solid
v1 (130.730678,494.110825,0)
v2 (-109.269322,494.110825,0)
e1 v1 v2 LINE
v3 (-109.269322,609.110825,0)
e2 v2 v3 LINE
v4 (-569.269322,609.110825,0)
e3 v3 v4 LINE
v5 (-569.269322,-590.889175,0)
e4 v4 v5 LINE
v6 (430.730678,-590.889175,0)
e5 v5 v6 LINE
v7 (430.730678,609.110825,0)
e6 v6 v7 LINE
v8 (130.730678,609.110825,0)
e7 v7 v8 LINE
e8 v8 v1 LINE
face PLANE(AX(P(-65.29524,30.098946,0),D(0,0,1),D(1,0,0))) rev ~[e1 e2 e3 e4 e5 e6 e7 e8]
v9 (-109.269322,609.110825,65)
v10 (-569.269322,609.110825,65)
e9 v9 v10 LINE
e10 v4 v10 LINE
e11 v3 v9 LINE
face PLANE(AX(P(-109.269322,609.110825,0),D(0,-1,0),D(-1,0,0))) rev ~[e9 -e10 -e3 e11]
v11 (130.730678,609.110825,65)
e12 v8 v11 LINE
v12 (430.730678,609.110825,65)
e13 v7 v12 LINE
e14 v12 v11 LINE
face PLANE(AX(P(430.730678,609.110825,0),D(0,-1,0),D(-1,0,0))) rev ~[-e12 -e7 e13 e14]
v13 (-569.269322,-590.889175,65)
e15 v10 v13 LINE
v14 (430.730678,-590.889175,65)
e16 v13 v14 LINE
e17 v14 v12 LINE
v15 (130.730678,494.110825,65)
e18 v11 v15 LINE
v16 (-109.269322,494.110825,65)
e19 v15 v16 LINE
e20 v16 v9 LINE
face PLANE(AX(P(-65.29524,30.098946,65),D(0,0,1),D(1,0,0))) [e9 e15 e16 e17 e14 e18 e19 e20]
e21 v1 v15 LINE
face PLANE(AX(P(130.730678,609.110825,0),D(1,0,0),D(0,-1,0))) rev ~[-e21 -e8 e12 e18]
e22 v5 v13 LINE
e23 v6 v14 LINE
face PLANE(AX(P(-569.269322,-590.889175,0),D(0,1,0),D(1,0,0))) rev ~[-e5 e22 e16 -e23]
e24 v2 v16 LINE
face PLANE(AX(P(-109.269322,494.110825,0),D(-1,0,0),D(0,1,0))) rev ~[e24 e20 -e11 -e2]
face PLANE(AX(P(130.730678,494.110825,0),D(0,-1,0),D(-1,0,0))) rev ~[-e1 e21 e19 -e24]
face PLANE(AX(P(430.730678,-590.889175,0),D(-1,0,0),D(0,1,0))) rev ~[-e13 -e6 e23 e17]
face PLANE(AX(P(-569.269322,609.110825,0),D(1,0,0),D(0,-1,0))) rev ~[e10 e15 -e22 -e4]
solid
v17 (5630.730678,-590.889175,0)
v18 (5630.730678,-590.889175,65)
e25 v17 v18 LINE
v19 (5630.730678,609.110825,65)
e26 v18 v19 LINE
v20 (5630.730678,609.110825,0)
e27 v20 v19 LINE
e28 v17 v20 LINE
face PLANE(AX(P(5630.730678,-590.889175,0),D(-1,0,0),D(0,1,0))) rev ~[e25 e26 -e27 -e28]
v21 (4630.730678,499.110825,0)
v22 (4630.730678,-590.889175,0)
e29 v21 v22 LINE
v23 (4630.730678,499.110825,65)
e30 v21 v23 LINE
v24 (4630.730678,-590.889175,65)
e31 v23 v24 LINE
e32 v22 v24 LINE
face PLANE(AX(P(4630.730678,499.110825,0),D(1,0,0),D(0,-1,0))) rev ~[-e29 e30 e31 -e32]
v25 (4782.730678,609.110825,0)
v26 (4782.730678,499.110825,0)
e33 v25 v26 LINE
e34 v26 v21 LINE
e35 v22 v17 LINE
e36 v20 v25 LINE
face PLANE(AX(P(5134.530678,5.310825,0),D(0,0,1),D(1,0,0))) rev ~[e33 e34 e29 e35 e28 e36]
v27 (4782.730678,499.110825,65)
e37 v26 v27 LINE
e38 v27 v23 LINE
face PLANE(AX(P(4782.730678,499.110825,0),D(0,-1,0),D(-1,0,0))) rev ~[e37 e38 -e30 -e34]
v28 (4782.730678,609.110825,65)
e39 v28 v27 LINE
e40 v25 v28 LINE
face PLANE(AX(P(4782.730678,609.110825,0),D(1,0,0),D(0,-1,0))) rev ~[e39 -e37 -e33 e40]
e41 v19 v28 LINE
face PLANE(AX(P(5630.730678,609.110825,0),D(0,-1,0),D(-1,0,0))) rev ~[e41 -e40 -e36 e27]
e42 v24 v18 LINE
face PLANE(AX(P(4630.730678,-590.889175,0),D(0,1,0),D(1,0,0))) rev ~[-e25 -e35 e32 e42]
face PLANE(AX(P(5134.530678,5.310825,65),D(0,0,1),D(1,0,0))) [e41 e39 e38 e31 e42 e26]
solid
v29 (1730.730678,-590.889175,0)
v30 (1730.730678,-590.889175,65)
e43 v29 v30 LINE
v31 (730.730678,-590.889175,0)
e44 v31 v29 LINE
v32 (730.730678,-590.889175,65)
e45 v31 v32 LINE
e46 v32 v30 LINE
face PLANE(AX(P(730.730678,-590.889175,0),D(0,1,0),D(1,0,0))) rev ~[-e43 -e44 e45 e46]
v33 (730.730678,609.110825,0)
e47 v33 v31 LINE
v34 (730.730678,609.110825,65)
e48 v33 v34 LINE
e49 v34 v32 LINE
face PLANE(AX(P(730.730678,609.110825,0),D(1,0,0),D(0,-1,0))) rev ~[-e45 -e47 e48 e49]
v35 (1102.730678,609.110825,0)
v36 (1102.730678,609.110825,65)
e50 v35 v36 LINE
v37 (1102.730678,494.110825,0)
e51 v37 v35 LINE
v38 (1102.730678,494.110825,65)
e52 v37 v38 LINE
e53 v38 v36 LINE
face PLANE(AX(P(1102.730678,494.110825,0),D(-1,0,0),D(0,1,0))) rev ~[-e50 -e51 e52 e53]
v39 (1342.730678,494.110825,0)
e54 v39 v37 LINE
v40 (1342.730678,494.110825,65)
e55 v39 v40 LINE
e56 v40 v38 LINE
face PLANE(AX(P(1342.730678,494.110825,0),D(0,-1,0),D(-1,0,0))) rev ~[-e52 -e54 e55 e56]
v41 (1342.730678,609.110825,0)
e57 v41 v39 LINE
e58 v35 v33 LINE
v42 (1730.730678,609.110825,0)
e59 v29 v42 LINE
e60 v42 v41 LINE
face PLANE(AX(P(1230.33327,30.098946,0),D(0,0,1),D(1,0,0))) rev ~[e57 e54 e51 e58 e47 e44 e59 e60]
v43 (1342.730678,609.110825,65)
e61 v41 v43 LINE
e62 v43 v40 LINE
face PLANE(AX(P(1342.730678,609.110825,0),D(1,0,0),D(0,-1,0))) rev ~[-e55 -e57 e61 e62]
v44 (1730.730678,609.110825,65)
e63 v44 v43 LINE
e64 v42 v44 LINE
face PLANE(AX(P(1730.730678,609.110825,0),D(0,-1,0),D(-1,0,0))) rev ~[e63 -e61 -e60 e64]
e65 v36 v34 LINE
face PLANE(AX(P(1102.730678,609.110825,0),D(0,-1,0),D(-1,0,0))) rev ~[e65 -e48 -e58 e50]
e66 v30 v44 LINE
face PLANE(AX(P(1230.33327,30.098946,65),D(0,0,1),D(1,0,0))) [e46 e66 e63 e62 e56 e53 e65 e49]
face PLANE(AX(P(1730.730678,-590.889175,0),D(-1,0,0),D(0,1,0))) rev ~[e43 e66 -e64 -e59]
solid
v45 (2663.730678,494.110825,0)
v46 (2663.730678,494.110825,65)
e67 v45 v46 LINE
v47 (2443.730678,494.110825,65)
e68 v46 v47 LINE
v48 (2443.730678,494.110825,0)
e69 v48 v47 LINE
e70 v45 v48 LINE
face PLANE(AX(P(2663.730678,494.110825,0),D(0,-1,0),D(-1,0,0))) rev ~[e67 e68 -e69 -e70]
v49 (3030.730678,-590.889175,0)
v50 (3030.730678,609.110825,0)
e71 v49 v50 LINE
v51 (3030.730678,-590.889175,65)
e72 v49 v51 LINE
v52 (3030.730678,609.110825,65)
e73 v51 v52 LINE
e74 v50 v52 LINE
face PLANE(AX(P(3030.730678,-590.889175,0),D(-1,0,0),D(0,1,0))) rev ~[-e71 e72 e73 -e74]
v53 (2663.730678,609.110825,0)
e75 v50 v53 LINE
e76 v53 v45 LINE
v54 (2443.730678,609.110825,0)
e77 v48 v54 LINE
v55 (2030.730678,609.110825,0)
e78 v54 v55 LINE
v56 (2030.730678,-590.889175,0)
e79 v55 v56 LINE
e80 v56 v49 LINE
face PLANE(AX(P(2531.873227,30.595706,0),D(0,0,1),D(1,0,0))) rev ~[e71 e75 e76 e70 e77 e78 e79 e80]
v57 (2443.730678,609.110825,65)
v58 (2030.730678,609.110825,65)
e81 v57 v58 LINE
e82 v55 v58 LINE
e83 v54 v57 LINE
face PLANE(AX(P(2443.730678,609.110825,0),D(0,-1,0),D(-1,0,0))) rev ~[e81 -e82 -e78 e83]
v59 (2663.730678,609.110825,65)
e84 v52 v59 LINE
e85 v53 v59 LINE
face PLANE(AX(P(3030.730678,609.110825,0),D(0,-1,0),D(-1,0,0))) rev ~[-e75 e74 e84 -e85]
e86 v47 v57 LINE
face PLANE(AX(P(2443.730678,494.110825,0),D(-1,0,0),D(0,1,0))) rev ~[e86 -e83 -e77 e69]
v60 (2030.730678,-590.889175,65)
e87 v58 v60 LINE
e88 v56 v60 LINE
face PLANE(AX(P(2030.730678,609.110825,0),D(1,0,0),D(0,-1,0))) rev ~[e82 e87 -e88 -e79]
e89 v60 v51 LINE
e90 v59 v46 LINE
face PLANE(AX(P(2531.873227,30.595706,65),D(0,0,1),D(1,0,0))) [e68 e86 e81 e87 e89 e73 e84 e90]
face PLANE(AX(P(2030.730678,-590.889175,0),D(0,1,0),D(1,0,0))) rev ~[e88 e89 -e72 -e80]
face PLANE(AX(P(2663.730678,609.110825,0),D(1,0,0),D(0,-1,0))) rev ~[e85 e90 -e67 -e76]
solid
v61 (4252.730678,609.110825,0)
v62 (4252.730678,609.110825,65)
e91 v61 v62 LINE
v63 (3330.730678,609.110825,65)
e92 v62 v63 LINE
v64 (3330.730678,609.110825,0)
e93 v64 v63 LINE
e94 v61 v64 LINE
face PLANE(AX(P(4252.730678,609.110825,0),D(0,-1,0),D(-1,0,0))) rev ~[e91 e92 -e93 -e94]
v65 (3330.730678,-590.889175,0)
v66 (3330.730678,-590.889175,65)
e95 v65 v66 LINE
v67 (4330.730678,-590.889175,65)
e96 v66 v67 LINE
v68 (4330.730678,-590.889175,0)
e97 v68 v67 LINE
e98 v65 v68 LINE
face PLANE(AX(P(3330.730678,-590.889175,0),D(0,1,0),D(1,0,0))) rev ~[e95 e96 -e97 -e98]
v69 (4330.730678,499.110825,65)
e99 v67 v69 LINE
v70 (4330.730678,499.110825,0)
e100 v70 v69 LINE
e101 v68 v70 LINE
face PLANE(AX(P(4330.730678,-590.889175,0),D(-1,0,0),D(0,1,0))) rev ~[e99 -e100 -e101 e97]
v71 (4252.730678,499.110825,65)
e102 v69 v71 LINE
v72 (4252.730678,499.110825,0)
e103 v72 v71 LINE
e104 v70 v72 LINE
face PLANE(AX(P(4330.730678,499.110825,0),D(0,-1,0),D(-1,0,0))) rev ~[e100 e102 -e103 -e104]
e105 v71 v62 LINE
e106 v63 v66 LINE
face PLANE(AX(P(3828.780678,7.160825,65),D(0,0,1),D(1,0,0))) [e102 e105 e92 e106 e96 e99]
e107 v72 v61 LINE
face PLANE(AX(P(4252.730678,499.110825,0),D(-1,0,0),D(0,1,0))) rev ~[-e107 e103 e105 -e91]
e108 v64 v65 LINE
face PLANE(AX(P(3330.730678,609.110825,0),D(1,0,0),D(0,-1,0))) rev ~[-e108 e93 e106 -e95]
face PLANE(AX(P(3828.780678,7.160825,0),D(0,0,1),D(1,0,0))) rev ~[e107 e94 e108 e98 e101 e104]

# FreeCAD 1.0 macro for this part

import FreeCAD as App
import Part
import Sketcher

doc = App.newDocument("Part")
body = doc.addObject("PartDesign::Body", "Body")
body.AllowCompound = True

# Sketch on XY plane
sketch1 = body.newObject("Sketcher::SketchObject", "Sketch")
sketch1.AttachmentSupport = (doc.getObject("XY_Plane"), [""])
sketch1.MapMode = "FlatFace"
sketch1.addGeometry([
    Part.LineSegment(App.Vector(-109, 609, 0), App.Vector(-569, 609, 0)),  # 0
    Part.LineSegment(App.Vector(-569, 609, 0), App.Vector(-569, -591, 0)),  # 1
    Part.LineSegment(App.Vector(-569, -591, 0), App.Vector(431, -591, 0)),  # 2
    Part.LineSegment(App.Vector(431, -591, 0), App.Vector(431, 609, 0)),  # 3
    Part.LineSegment(App.Vector(431, 609, 0), App.Vector(131, 609, 0)),  # 4
    Part.LineSegment(App.Vector(131, 609, 0), App.Vector(131, 494, 0)),  # 5
    Part.LineSegment(App.Vector(131, 494, 0), App.Vector(-109, 494, 0)),  # 6
    Part.LineSegment(App.Vector(-109, 494, 0), App.Vector(-109, 609, 0)),  # 7
    Part.LineSegment(App.Vector(1103, 609, 0), App.Vector(731, 609, 0)),  # 8
    Part.LineSegment(App.Vector(731, 609, 0), App.Vector(731, -591, 0)),  # 9
    Part.LineSegment(App.Vector(731, -591, 0), App.Vector(1731, -591, 0)),  # 10
    Part.LineSegment(App.Vector(1731, -591, 0), App.Vector(1731, 609, 0)),  # 11
    Part.LineSegment(App.Vector(1731, 609, 0), App.Vector(1343, 609, 0)),  # 12
    Part.LineSegment(App.Vector(1343, 609, 0), App.Vector(1343, 494, 0)),  # 13
    Part.LineSegment(App.Vector(1343, 494, 0), App.Vector(1103, 494, 0)),  # 14
    Part.LineSegment(App.Vector(1103, 494, 0), App.Vector(1103, 609, 0)),  # 15
    Part.LineSegment(App.Vector(2444, 609, 0), App.Vector(2031, 609, 0)),  # 16
    Part.LineSegment(App.Vector(2031, 609, 0), App.Vector(2031, -591, 0)),  # 17
    Part.LineSegment(App.Vector(2031, -591, 0), App.Vector(3031, -591, 0)),  # 18
    Part.LineSegment(App.Vector(3031, -591, 0), App.Vector(3031, 609, 0)),  # 19
    Part.LineSegment(App.Vector(3031, 609, 0), App.Vector(2664, 609, 0)),  # 20
    Part.LineSegment(App.Vector(2664, 609, 0), App.Vector(2664, 494, 0)),  # 21
    Part.LineSegment(App.Vector(2664, 494, 0), App.Vector(2444, 494, 0)),  # 22
    Part.LineSegment(App.Vector(2444, 494, 0), App.Vector(2444, 609, 0)),  # 23
    Part.LineSegment(App.Vector(4253, 609, 0), App.Vector(3331, 609, 0)),  # 24
    Part.LineSegment(App.Vector(3331, 609, 0), App.Vector(3331, -591, 0)),  # 25
    Part.LineSegment(App.Vector(3331, -591, 0), App.Vector(4331, -591, 0)),  # 26
    Part.LineSegment(App.Vector(4331, -591, 0), App.Vector(4331, 499, 0)),  # 27
    Part.LineSegment(App.Vector(4331, 499, 0), App.Vector(4253, 499, 0)),  # 28
    Part.LineSegment(App.Vector(4253, 499, 0), App.Vector(4253, 609, 0)),  # 29
    Part.LineSegment(App.Vector(5631, 609, 0), App.Vector(4783, 609, 0)),  # 30
    Part.LineSegment(App.Vector(4783, 609, 0), App.Vector(4783, 499, 0)),  # 31
    Part.LineSegment(App.Vector(4783, 499, 0), App.Vector(4631, 499, 0)),  # 32
    Part.LineSegment(App.Vector(4631, 499, 0), App.Vector(4631, -591, 0)),  # 33
    Part.LineSegment(App.Vector(4631, -591, 0), App.Vector(5631, -591, 0)),  # 34
    Part.LineSegment(App.Vector(5631, -591, 0), App.Vector(5631, 609, 0)),  # 35
], False)
sketch1.addConstraint([
    Sketcher.Constraint("Coincident", 0, 2, 1, 1),
    Sketcher.Constraint("Coincident", 1, 2, 2, 1),
    Sketcher.Constraint("Coincident", 2, 2, 3, 1),
    Sketcher.Constraint("Coincident", 3, 2, 4, 1),
    Sketcher.Constraint("Coincident", 4, 2, 5, 1),
    Sketcher.Constraint("Coincident", 5, 2, 6, 1),
    Sketcher.Constraint("Coincident", 6, 2, 7, 1),
    Sketcher.Constraint("Coincident", 7, 2, 0, 1),
    Sketcher.Constraint("Coincident", 8, 2, 9, 1),
    Sketcher.Constraint("Coincident", 9, 2, 10, 1),
    Sketcher.Constraint("Coincident", 10, 2, 11, 1),
    Sketcher.Constraint("Coincident", 11, 2, 12, 1),
    Sketcher.Constraint("Coincident", 12, 2, 13, 1),
    Sketcher.Constraint("Coincident", 13, 2, 14, 1),
    Sketcher.Constraint("Coincident", 14, 2, 15, 1),
    Sketcher.Constraint("Coincident", 15, 2, 8, 1),
    Sketcher.Constraint("Coincident", 16, 2, 17, 1),
    Sketcher.Constraint("Coincident", 17, 2, 18, 1),
    Sketcher.Constraint("Coincident", 18, 2, 19, 1),
    Sketcher.Constraint("Coincident", 19, 2, 20, 1),
    Sketcher.Constraint("Coincident", 20, 2, 21, 1),
    Sketcher.Constraint("Coincident", 21, 2, 22, 1),
    Sketcher.Constraint("Coincident", 22, 2, 23, 1),
    Sketcher.Constraint("Coincident", 23, 2, 16, 1),
    Sketcher.Constraint("Coincident", 24, 2, 25, 1),
    Sketcher.Constraint("Coincident", 25, 2, 26, 1),
    Sketcher.Constraint("Coincident", 26, 2, 27, 1),
    Sketcher.Constraint("Coincident", 27, 2, 28, 1),
    Sketcher.Constraint("Coincident", 28, 2, 29, 1),
    Sketcher.Constraint("Coincident", 29, 2, 24, 1),
    Sketcher.Constraint("Coincident", 30, 2, 31, 1),
    Sketcher.Constraint("Coincident", 31, 2, 32, 1),
    Sketcher.Constraint("Coincident", 32, 2, 33, 1),
    Sketcher.Constraint("Coincident", 33, 2, 34, 1),
    Sketcher.Constraint("Coincident", 34, 2, 35, 1),
    Sketcher.Constraint("Coincident", 35, 2, 30, 1),
    Sketcher.Constraint("Horizontal", 0),
    Sketcher.Constraint("Vertical", 1),
    Sketcher.Constraint("Horizontal", 2),
    Sketcher.Constraint("Vertical", 3),
    Sketcher.Constraint("Horizontal", 4),
    Sketcher.Constraint("Vertical", 5),
    Sketcher.Constraint("Horizontal", 6),
    Sketcher.Constraint("Vertical", 7),
    Sketcher.Constraint("Horizontal", 8),
    Sketcher.Constraint("Vertical", 9),
    Sketcher.Constraint("Horizontal", 10),
    Sketcher.Constraint("Vertical", 11),
    Sketcher.Constraint("Horizontal", 12),
    Sketcher.Constraint("Vertical", 13),
    Sketcher.Constraint("Horizontal", 14),
    Sketcher.Constraint("Vertical", 15),
    Sketcher.Constraint("Horizontal", 16),
    Sketcher.Constraint("Vertical", 17),
    Sketcher.Constraint("Horizontal", 18),
    Sketcher.Constraint("Vertical", 19),
    Sketcher.Constraint("Horizontal", 20),
    Sketcher.Constraint("Vertical", 21),
    Sketcher.Constraint("Horizontal", 22),
    Sketcher.Constraint("Vertical", 23),
    Sketcher.Constraint("Horizontal", 24),
    Sketcher.Constraint("Vertical", 25),
    Sketcher.Constraint("Horizontal", 26),
    Sketcher.Constraint("Vertical", 27),
    Sketcher.Constraint("Horizontal", 28),
    Sketcher.Constraint("Vertical", 29),
    Sketcher.Constraint("Horizontal", 30),
    Sketcher.Constraint("Vertical", 31),
    Sketcher.Constraint("Horizontal", 32),
    Sketcher.Constraint("Vertical", 33),
    Sketcher.Constraint("Horizontal", 34),
    Sketcher.Constraint("Vertical", 35),
    Sketcher.Constraint("Horizontal", 0, 2, 3, 2),
    Sketcher.Constraint("Horizontal", 7, 2, 8, 2),
    Sketcher.Constraint("Horizontal", 2, 2, 9, 2),
    Sketcher.Constraint("Horizontal", 8, 2, 11, 2),
    Sketcher.Constraint("Horizontal", 6, 2, 13, 2),
    Sketcher.Constraint("Horizontal", 15, 2, 16, 2),
    Sketcher.Constraint("Horizontal", 10, 2, 17, 2),
    Sketcher.Constraint("Horizontal", 16, 2, 19, 2),
    Sketcher.Constraint("Horizontal", 14, 2, 21, 2),
    Sketcher.Constraint("Horizontal", 23, 2, 24, 2),
    Sketcher.Constraint("Horizontal", 18, 2, 25, 2),
    Sketcher.Constraint("Horizontal", 29, 2, 30, 2),
    Sketcher.Constraint("Horizontal", 28, 2, 31, 2),
    Sketcher.Constraint("Horizontal", 26, 2, 33, 2),
    Sketcher.Constraint("Equal", 2, 10),
    Sketcher.Constraint("Equal", 6, 14),
    Sketcher.Constraint("Equal", 10, 18),
    Sketcher.Constraint("Equal", 18, 26),
    Sketcher.Constraint("Equal", 26, 34),
    Sketcher.Constraint("DistanceX", 0, 2, 0, 1, 460.0),
    Sketcher.Constraint("DistanceX", 2, 1, 2, 2, 1000.0),
    Sketcher.Constraint("DistanceX", 4, 2, 4, 1, 300.0),
    Sketcher.Constraint("DistanceX", 8, 2, 8, 1, 372.0),
    Sketcher.Constraint("DistanceX", 16, 2, 16, 1, 413.0),
    Sketcher.Constraint("DistanceX", 20, 2, 20, 1, 367.0),
    Sketcher.Constraint("DistanceX", 24, 2, 24, 1, 922.0),
    Sketcher.Constraint("DistanceX", 30, 2, 30, 1, 848.0),
    Sketcher.Constraint("DistanceY", 1, 2, 1, 1, 1200.0),
    Sketcher.Constraint("DistanceY", 5, 2, 5, 1, 115.0),
    Sketcher.Constraint("DistanceY", 27, 1, 27, 2, 1090.0),
    Sketcher.Constraint("DistanceX", 3, 2, 8, 2, 300.0),
    Sketcher.Constraint("DistanceX", 11, 2, 16, 2, 300.0),
    Sketcher.Constraint("DistanceX", 19, 2, 24, 2, 300.0),
    Sketcher.Constraint("DistanceX", 27, 2, 30, 2, 452.0),
    Sketcher.Constraint("DistanceX", 0, 2, -1, 1, 569.269322),
    Sketcher.Constraint("DistanceY", -1, 1, 0, 2, 609.110825),
])
pad1 = body.newObject("PartDesign::Pad", "Pad")
pad1.Profile = sketch1
pad1.Length = 65

doc.recompute()
